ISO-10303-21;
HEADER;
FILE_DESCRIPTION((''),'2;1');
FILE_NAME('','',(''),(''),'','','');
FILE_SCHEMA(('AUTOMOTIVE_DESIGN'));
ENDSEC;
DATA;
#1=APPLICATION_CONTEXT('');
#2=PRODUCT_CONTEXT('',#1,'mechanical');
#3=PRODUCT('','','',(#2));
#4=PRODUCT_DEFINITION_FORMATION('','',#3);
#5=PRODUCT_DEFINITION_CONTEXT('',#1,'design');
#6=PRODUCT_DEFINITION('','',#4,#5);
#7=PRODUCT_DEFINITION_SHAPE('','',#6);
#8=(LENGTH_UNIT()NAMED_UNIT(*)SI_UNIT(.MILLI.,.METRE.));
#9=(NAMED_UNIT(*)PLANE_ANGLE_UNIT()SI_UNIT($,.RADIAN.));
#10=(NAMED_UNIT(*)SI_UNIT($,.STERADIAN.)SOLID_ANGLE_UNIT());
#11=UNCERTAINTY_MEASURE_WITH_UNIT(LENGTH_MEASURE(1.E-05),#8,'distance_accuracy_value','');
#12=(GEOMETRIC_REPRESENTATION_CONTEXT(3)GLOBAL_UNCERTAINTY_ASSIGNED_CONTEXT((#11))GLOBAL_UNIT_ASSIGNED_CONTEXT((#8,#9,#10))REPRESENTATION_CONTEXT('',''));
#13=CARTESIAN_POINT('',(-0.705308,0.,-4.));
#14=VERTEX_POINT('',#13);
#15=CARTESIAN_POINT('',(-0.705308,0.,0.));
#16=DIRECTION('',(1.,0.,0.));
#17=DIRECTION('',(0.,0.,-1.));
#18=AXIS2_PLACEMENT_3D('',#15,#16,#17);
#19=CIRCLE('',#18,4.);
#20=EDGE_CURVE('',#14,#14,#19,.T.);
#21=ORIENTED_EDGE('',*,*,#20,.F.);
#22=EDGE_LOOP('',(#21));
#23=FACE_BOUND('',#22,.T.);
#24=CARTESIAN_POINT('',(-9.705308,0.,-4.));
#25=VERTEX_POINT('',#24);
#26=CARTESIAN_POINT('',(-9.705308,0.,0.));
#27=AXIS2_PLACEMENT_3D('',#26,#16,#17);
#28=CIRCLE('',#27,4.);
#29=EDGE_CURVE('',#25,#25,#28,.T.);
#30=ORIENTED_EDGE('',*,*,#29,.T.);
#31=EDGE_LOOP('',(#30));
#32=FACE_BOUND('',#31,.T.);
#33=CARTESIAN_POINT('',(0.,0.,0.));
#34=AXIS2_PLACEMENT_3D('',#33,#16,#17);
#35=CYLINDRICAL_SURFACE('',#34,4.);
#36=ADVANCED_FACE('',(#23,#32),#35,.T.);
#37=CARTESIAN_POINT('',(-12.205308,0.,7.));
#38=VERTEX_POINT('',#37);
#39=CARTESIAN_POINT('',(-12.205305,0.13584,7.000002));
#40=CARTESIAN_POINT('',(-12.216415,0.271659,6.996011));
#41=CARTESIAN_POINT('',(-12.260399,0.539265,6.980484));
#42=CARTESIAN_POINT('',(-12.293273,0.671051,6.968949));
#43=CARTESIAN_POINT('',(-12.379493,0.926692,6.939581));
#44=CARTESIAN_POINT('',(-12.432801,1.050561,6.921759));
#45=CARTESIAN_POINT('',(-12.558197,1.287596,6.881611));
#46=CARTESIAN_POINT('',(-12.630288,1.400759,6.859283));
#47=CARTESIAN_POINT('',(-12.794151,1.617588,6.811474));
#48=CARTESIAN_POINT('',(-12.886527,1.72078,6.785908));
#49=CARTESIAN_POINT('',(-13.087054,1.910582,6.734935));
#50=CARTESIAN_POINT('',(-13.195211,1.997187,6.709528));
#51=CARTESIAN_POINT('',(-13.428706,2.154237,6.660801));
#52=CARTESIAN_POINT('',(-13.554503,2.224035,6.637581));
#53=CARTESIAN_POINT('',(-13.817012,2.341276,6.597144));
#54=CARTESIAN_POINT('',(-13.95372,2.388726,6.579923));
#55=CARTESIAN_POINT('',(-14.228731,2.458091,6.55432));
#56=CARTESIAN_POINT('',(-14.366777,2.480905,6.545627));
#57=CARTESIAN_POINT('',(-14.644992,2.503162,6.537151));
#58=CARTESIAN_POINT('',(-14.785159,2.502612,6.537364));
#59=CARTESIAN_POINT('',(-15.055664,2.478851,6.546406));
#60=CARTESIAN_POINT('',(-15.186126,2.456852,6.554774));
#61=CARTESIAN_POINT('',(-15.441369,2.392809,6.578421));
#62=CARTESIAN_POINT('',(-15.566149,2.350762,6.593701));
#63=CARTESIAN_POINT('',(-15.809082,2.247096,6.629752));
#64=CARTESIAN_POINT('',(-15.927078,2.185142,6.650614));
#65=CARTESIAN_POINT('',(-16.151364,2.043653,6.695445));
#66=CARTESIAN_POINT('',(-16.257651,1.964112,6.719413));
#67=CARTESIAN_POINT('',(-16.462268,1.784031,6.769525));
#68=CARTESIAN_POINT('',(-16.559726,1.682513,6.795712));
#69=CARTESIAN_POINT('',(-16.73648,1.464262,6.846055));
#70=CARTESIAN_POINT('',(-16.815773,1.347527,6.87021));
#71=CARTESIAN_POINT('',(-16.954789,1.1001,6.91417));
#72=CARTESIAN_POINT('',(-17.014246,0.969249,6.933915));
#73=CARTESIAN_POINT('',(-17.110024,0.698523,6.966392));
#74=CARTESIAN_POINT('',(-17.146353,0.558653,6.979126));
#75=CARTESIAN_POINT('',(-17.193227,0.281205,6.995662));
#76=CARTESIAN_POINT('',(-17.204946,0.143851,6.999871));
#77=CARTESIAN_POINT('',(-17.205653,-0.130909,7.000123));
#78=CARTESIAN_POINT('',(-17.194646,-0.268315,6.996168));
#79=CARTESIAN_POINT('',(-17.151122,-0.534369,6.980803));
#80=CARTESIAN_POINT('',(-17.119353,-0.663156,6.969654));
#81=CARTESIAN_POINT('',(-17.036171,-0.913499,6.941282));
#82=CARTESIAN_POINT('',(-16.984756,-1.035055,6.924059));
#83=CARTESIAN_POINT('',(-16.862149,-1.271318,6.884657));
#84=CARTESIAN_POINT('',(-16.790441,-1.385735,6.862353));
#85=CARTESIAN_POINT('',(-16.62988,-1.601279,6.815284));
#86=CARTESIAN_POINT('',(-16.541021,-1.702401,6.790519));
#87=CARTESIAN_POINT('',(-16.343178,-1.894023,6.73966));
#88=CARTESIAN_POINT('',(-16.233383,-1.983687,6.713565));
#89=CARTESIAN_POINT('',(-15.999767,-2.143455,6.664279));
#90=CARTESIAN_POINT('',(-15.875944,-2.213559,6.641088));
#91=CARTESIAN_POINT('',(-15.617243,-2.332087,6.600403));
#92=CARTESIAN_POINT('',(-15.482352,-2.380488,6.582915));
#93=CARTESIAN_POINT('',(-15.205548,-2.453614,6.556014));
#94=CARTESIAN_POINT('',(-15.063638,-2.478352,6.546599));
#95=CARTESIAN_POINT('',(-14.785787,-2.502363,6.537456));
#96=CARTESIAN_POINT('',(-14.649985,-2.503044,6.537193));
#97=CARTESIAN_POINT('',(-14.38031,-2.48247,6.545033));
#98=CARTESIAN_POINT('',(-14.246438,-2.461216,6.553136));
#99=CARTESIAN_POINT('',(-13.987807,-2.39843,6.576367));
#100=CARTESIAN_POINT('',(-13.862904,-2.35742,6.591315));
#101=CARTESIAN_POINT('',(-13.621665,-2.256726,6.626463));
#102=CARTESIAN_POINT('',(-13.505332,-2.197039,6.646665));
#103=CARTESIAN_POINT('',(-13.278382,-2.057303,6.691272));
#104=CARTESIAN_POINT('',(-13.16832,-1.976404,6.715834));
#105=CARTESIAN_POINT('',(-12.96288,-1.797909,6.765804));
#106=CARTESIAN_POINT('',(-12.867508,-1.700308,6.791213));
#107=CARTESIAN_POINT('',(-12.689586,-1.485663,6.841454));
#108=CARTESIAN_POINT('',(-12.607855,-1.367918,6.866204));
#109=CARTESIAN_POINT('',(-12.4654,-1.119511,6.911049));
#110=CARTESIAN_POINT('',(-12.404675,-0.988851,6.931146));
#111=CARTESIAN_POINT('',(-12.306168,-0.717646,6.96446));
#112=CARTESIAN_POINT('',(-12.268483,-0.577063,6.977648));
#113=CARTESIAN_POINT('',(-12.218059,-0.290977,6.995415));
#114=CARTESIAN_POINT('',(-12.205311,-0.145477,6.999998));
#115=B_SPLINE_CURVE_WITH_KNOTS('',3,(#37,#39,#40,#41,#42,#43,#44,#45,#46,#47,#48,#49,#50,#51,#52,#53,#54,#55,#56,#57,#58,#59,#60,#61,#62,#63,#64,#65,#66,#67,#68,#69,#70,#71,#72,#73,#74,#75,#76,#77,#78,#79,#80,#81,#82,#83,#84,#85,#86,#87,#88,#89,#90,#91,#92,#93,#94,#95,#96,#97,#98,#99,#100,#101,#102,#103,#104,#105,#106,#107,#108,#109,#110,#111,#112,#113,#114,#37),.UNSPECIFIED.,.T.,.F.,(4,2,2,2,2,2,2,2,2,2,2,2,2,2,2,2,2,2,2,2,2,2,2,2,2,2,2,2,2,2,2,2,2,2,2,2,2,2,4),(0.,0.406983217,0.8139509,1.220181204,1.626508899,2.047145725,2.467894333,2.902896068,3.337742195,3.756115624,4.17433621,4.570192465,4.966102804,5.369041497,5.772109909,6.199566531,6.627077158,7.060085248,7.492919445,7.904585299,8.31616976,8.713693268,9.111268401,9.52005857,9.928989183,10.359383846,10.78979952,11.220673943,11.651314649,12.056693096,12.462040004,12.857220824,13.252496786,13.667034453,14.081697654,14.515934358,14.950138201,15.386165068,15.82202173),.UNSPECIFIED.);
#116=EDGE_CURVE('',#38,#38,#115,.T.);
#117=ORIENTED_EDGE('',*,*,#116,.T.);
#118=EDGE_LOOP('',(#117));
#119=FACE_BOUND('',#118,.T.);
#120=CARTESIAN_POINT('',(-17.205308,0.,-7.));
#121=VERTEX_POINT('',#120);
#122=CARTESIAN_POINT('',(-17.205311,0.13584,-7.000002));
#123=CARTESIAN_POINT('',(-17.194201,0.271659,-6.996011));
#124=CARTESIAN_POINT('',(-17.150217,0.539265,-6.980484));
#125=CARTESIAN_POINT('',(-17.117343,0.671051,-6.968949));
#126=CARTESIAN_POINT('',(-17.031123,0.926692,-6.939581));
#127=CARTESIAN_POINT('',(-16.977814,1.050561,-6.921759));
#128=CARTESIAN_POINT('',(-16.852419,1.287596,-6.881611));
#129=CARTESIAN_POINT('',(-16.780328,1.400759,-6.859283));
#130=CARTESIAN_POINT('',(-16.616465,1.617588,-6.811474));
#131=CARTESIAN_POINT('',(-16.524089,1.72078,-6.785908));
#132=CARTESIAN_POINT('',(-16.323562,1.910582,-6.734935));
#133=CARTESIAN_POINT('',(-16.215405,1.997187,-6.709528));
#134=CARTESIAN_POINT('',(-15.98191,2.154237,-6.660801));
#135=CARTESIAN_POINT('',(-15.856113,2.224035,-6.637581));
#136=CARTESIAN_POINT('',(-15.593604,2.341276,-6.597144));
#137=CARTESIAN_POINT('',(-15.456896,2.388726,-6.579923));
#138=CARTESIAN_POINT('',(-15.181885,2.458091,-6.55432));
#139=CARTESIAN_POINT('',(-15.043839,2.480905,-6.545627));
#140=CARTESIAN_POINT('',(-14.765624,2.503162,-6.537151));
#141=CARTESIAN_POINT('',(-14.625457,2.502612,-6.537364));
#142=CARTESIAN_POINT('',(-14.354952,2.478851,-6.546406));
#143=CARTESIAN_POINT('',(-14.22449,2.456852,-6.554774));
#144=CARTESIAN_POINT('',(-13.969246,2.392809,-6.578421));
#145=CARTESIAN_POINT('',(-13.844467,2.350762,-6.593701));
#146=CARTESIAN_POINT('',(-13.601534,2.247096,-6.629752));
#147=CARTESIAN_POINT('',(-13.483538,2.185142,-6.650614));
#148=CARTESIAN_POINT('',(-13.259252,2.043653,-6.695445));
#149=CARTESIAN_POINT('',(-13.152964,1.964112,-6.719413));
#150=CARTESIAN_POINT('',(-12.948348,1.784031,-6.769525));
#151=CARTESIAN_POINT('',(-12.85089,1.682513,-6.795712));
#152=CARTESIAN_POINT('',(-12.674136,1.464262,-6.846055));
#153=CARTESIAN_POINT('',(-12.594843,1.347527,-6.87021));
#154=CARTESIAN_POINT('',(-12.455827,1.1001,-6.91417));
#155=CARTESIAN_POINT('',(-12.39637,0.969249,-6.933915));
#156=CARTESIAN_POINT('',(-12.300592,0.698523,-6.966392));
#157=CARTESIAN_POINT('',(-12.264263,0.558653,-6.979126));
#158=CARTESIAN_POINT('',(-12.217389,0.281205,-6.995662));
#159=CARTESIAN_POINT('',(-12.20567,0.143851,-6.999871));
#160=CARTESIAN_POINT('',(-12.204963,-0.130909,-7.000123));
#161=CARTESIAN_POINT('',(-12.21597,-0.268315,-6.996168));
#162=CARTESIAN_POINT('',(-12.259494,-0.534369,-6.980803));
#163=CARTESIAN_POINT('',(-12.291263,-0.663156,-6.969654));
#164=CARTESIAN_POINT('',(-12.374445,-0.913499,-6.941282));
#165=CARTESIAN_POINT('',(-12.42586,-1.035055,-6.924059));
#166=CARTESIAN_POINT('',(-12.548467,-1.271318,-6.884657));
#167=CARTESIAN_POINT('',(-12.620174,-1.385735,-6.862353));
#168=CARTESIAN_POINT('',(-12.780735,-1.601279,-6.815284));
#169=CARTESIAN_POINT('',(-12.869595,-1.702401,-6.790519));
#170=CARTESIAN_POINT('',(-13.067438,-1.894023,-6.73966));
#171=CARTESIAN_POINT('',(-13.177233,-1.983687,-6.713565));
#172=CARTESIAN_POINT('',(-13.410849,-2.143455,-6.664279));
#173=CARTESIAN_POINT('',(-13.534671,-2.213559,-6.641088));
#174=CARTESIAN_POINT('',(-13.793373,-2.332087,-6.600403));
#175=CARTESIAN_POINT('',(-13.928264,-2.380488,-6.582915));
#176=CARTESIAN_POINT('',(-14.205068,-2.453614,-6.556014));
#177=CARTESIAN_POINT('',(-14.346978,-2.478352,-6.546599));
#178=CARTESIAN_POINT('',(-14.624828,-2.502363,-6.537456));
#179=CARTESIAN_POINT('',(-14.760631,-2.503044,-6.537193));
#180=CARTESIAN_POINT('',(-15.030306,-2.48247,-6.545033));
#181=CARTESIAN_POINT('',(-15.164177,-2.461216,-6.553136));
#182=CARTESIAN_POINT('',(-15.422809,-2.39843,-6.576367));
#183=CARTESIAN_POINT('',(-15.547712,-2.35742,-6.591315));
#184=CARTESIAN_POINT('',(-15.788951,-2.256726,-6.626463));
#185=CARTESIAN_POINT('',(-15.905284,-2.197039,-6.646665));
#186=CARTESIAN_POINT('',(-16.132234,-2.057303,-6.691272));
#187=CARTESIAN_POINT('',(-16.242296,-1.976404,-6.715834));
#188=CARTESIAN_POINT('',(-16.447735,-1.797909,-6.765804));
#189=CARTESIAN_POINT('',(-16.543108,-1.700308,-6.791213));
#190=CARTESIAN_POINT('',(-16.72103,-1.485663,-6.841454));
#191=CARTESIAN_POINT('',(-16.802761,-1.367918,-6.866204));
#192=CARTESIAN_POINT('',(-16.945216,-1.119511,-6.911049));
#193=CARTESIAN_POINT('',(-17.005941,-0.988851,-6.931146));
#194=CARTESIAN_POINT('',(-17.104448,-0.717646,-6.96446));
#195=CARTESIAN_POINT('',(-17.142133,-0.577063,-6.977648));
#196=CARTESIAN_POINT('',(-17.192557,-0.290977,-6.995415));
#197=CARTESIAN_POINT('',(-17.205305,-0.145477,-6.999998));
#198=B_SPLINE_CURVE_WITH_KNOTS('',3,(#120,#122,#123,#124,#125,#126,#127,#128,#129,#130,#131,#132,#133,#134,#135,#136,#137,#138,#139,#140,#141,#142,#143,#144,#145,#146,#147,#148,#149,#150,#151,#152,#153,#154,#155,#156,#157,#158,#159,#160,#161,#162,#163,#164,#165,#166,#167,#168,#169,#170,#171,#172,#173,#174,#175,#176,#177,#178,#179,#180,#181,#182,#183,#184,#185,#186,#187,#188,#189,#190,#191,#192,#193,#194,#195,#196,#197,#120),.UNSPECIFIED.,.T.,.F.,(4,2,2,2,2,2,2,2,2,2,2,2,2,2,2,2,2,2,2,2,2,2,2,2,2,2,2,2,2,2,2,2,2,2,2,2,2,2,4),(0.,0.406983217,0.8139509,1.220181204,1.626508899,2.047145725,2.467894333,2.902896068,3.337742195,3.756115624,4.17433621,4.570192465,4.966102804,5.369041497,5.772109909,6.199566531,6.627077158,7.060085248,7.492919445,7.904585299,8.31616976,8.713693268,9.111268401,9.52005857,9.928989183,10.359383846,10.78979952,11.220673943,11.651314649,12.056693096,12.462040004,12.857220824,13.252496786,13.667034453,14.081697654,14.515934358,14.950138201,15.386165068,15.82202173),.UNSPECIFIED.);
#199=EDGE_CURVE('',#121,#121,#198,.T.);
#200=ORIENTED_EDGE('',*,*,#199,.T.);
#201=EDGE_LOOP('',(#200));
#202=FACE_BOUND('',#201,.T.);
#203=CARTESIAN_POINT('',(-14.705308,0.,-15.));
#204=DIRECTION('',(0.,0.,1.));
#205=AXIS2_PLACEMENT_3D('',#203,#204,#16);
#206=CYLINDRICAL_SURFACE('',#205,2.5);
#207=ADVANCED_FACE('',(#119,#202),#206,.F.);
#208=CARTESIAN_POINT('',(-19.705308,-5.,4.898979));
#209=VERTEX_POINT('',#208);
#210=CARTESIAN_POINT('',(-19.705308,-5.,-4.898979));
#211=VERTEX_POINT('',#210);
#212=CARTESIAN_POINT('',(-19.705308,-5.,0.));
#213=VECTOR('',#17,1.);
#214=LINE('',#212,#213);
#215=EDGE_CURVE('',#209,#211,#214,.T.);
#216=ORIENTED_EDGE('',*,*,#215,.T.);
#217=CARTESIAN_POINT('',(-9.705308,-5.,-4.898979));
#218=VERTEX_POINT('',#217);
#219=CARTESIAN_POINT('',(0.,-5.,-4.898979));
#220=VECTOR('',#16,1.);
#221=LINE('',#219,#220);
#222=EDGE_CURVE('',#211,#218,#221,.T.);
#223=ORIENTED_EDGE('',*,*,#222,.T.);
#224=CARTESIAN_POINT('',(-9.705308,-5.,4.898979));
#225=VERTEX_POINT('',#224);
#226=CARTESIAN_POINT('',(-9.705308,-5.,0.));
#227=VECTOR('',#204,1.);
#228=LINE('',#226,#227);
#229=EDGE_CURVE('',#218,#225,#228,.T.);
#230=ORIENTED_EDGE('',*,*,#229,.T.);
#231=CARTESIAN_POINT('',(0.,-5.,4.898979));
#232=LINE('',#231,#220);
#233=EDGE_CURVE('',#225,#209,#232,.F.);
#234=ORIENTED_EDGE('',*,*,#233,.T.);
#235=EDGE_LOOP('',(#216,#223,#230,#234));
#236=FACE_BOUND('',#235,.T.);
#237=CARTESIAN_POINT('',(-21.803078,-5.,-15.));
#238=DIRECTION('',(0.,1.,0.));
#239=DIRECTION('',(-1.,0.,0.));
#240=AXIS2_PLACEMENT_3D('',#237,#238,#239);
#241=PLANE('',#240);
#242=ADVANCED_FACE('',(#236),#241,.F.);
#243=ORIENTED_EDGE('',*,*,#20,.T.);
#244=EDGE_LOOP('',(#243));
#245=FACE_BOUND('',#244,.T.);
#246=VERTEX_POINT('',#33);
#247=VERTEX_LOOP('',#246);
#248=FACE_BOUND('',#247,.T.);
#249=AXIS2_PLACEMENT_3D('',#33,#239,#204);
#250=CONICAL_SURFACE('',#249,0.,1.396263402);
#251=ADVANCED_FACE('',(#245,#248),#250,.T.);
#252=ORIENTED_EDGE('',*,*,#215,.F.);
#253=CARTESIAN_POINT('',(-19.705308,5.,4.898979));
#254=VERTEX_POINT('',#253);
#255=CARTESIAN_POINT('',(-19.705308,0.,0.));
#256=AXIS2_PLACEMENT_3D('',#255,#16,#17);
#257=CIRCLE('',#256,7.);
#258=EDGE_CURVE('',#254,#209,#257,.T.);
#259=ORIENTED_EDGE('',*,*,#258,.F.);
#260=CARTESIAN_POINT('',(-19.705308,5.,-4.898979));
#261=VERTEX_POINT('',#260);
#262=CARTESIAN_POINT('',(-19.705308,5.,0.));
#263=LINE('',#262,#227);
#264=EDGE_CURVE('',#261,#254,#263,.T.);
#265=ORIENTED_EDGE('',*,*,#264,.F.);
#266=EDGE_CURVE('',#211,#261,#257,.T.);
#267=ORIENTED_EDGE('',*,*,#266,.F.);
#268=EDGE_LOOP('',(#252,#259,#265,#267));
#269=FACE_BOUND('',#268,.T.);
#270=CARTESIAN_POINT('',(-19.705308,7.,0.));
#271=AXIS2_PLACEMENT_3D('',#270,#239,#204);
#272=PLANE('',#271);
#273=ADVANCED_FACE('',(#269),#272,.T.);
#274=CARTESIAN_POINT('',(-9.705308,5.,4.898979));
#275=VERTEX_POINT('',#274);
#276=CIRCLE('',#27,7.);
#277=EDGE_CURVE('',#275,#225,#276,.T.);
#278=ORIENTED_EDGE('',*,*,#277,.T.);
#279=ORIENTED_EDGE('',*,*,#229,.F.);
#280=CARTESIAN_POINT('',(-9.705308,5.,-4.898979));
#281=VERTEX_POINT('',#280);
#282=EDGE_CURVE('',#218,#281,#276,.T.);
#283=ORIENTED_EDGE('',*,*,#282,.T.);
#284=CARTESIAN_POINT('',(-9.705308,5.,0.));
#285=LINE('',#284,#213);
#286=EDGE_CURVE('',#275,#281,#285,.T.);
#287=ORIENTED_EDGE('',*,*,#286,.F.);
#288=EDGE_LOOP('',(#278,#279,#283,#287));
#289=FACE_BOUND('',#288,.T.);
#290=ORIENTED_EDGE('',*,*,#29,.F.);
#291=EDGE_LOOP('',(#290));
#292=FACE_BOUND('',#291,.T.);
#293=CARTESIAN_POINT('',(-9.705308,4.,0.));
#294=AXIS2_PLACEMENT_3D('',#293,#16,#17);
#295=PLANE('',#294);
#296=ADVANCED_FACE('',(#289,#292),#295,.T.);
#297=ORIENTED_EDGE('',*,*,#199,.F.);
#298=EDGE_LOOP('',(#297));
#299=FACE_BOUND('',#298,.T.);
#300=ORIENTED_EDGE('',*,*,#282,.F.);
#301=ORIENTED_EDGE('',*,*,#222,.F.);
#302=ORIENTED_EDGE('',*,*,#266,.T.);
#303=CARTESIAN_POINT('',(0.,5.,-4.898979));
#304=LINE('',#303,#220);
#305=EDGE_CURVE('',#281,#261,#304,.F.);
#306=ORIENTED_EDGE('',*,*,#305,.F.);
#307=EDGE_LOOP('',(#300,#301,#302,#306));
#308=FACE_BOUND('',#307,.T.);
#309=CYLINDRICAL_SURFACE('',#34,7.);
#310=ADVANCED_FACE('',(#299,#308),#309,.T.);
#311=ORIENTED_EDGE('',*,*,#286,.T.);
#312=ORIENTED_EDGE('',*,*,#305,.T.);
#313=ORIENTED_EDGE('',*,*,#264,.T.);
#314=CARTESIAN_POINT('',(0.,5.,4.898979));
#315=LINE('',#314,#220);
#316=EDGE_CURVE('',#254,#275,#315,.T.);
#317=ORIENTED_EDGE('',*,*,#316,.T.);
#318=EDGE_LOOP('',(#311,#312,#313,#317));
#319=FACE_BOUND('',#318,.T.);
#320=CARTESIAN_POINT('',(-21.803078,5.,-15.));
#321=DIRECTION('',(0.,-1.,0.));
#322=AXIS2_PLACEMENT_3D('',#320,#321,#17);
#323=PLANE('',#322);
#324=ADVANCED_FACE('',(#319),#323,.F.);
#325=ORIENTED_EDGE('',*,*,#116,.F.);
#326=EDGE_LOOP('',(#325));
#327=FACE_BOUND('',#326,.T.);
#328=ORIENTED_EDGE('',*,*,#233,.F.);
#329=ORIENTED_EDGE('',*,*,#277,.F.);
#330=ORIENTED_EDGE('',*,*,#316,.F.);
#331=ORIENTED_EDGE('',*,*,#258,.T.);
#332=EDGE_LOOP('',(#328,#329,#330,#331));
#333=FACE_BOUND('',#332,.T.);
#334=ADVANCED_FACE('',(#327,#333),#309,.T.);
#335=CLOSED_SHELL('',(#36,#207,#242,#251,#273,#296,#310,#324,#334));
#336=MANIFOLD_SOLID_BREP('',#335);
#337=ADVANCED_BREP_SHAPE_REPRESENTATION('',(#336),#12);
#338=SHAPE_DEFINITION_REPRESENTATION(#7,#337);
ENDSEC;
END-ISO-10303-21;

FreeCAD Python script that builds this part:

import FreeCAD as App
import Part
import Sketcher

V = App.Vector
Q = App.Units.Quantity


def add_polygon(sketch, points):
    """Adds a closed chain of lines whose ends are joined by coincident constraints."""
    first, n = sketch.GeometryCount, len(points)
    for a, b in zip(points, points[1:] + points[:1]):
        sketch.addGeometry(Part.LineSegment(App.Vector(*a, 0), App.Vector(*b, 0)), False)
    for i in range(n):
        sketch.addConstraint(Sketcher.Constraint("Coincident", first + i, 2, first + (i + 1) % n, 1))

doc = App.newDocument("Part")
body = doc.addObject("PartDesign::Body", "Body")

# Sketch on XY plane
sketch1 = body.newObject("Sketcher::SketchObject", "Sketch")
sketch1.AttachmentSupport = (doc.getObject("XY_Plane"), [""])
sketch1.MapMode = "FlatFace"
add_polygon(sketch1, [(0, 0), (-0.7, 4), (-9.7, 4), (-9.7, 7), (-19.7, 7), (-19.7, 0)])  # lines 0-5
sketch1.addConstraint([
    Sketcher.Constraint("Horizontal", 1),
    Sketcher.Constraint("Vertical", 2),
    Sketcher.Constraint("Horizontal", 3),
    Sketcher.Constraint("Vertical", 4),
    Sketcher.Constraint("Horizontal", 5),
    Sketcher.Constraint("Coincident", 5, 2, -1, 1),
    Sketcher.Constraint("DistanceX", 1, 2, 1, 1, 9.0),
    Sketcher.Constraint("DistanceX", 3, 2, 3, 1, 10.0),
    Sketcher.Constraint("DistanceY", 2, 1, 2, 2, 3.0),
    Sketcher.Constraint("DistanceY", 4, 2, 4, 1, 7.0),
    Sketcher.Constraint("Angle", 0, Q("100 deg")),
])
revolution = body.newObject("PartDesign::Revolution", "Revolution")
revolution.Profile = sketch1
revolution.ReferenceAxis = (sketch1, ["H_Axis"])
revolution.Angle = 360

# Sketch on XY plane
sketch2 = body.newObject("Sketcher::SketchObject", "Sketch001")
sketch2.AttachmentSupport = (doc.getObject("XY_Plane"), [""])
sketch2.MapMode = "FlatFace"
sketch2.addGeometry(Part.Circle(V(-14.7, 0, 0), V(0, 0, 1), 2.5), False)  # 0
add_polygon(sketch2, [(-21.8, -5), (-21.8, -9.1), (-7.2, -9.1), (-7.2, -5)])  # lines 1-4
add_polygon(sketch2, [(-21.8, 9.1), (-21.8, 5), (-7.2, 5), (-7.2, 9.1)])  # lines 5-8
sketch2.addConstraint([
    Sketcher.Constraint("Vertical", 1),
    Sketcher.Constraint("Horizontal", 2),
    Sketcher.Constraint("Vertical", 3),
    Sketcher.Constraint("Horizontal", 4),
    Sketcher.Constraint("Vertical", 5),
    Sketcher.Constraint("Horizontal", 6),
    Sketcher.Constraint("Vertical", 7),
    Sketcher.Constraint("Horizontal", 8),
    Sketcher.Constraint("Symmetric", 4, 2, 5, 2, -1),
    Sketcher.Constraint("Symmetric", 2, 2, 7, 2, -1),
    Sketcher.Constraint("PointOnObject", 0, 3, -1),
    Sketcher.Constraint("Diameter", 0, 5.0),
    Sketcher.Constraint("DistanceY", 3, 2, -1, 1, 5.0),
    Sketcher.Constraint("DistanceX", 2, 1, 2, 2, 14.617294),
    Sketcher.Constraint("DistanceY", 1, 2, 1, 1, 4.056108),
    Sketcher.Constraint("DistanceX", 1, 2, 0, 3, 7.09777),
    Sketcher.Constraint("DistanceX", 0, 3, -1, 1, 14.705308),
])
pocket1 = body.newObject("PartDesign::Pocket", "Pocket")
pocket1.Profile = sketch2
pocket1.Length = 30
pocket1.Midplane = True

doc.recompute()
